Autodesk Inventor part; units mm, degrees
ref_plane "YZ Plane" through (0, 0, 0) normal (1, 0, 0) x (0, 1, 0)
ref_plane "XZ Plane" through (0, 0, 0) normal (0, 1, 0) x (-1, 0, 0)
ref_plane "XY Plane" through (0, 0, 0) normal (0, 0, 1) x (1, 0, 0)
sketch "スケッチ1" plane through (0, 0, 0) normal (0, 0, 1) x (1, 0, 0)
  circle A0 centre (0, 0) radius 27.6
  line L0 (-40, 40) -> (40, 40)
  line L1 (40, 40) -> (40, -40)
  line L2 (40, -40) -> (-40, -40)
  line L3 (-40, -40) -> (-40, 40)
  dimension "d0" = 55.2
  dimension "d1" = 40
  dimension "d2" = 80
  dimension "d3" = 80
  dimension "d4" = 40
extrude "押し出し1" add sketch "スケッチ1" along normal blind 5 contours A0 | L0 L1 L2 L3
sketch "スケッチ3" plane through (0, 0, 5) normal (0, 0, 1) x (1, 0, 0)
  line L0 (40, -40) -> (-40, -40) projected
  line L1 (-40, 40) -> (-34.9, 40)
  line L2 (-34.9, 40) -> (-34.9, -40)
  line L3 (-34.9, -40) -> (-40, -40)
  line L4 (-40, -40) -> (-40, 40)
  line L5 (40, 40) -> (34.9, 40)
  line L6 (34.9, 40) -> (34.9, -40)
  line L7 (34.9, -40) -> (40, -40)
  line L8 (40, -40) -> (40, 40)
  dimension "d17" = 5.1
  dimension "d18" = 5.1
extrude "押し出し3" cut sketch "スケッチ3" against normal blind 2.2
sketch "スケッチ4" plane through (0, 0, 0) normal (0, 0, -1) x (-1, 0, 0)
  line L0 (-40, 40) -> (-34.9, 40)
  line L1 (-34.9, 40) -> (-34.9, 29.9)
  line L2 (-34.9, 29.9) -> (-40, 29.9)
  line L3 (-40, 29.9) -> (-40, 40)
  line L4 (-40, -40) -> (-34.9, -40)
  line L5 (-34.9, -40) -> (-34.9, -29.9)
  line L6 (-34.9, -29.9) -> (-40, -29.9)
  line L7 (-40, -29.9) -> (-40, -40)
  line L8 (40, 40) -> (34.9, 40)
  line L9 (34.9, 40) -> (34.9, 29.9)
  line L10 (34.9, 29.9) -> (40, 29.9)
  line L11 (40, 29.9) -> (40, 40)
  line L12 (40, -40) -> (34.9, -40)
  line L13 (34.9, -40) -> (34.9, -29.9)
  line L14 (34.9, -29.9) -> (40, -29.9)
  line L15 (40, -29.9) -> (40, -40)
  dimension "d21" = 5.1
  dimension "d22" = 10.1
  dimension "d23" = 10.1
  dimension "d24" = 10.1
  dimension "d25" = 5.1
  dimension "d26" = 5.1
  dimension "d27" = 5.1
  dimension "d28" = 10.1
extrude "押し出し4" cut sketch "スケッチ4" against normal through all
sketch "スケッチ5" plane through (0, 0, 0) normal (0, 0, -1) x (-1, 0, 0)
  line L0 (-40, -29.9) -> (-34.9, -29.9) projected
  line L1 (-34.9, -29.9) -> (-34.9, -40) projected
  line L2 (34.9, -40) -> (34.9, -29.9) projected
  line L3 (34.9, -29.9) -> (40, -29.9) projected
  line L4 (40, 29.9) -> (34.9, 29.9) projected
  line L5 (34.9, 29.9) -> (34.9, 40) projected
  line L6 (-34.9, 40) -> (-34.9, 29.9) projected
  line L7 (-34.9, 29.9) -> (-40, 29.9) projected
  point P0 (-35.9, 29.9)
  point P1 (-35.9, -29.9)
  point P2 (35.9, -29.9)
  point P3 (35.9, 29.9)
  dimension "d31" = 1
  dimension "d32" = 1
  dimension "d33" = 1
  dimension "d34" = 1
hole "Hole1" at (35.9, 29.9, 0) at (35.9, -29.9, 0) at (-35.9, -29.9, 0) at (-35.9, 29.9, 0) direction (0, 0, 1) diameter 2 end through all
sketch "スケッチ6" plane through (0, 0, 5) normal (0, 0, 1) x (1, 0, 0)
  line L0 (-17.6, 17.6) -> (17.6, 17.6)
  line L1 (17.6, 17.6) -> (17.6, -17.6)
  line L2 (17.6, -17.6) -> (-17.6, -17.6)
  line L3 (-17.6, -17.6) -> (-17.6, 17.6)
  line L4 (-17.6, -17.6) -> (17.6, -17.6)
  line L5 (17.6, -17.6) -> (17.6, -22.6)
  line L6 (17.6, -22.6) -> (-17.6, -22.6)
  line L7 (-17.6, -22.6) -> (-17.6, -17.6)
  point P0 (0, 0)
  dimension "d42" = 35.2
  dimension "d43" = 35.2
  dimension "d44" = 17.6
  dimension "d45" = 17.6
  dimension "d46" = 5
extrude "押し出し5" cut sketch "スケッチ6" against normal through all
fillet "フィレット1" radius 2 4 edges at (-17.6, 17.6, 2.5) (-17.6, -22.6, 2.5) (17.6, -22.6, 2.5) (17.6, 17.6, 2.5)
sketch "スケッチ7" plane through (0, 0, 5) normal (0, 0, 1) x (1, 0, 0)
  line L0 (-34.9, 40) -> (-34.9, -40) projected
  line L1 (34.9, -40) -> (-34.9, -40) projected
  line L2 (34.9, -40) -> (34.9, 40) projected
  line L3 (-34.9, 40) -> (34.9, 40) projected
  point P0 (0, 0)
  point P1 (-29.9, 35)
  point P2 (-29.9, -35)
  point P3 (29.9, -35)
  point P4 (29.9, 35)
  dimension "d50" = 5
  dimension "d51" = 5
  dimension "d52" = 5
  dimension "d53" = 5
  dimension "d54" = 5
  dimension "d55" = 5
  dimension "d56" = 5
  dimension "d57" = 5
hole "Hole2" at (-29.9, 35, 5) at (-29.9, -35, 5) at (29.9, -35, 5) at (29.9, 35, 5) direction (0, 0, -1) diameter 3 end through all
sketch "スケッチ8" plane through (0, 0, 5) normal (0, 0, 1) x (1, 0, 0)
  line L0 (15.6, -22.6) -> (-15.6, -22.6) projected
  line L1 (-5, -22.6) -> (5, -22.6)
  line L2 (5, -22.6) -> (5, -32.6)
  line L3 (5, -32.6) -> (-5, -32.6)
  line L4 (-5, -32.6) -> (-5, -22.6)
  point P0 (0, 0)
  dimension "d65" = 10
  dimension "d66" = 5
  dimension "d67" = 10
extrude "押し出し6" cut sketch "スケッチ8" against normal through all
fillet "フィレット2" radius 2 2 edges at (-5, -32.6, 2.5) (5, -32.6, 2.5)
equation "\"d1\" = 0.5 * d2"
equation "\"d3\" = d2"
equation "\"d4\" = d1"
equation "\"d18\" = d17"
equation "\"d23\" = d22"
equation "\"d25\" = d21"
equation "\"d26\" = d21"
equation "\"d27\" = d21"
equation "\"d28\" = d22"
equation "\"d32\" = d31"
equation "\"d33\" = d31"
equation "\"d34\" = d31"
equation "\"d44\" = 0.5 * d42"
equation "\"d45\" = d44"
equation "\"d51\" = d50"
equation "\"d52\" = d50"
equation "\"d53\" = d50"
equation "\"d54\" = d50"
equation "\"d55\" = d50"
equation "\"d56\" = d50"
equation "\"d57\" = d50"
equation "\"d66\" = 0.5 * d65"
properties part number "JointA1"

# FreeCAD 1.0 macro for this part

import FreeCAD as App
import Part
import Sketcher


def edges_at(feature, points):
    """Names of the edges that pass closest to the given points."""
    edges = feature.Shape.Edges
    near = lambda p: min(range(len(edges)), key=lambda i: edges[i].distToShape(Part.Vertex(*p))[0])
    return sorted({f"Edge{near(p) + 1}" for p in points})


def add_polygon(sketch, points):
    """Adds a closed chain of lines whose ends are joined by coincident constraints."""
    first, n = sketch.GeometryCount, len(points)
    for a, b in zip(points, points[1:] + points[:1]):
        sketch.addGeometry(Part.LineSegment(App.Vector(*a, 0), App.Vector(*b, 0)), False)
    for i in range(n):
        sketch.addConstraint(Sketcher.Constraint("Coincident", first + i, 2, first + (i + 1) % n, 1))

doc = App.newDocument("Part")
body = doc.addObject("PartDesign::Body", "Body")

sketch1 = body.newObject("Sketcher::SketchObject", "Sketch")
sketch1.AttachmentSupport = (doc.getObject("XY_Plane"), [""])
sketch1.MapMode = "FlatFace"
add_polygon(sketch1, [(40, 40), (-40, 40), (-40, -40), (40, -40)])
sketch1.addConstraint([
    Sketcher.Constraint("Horizontal", 0),
    Sketcher.Constraint("Vertical", 1),
    Sketcher.Constraint("Horizontal", 2),
    Sketcher.Constraint("Vertical", 3),
    Sketcher.Constraint("Symmetric", 0, 2, 2, 2, -1, 1),
    Sketcher.Constraint("Equal", 2, 1),
    Sketcher.Constraint("DistanceX", 0, 2, 0, 1, 80.0),
])
pad1 = body.newObject("PartDesign::Pad", "Pad")
pad1.Profile = sketch1
pad1.Length = 5

sketch2 = body.newObject("Sketcher::SketchObject", "Sketch001")
sketch2.AttachmentSupport = (doc.getObject("XY_Plane"), [""])
sketch2.MapMode = "FlatFace"
sketch2.AttachmentOffset = App.Placement(App.Vector(0, 0, 5), App.Rotation())
add_polygon(sketch2, [(-40, -40), (-35, -40), (-35, 40), (-40, 40)])
add_polygon(sketch2, [(35, -40), (40, -40), (40, 40), (35, 40)])
sketch2.addConstraint([
    Sketcher.Constraint("Horizontal", 0),
    Sketcher.Constraint("Vertical", 1),
    Sketcher.Constraint("Horizontal", 2),
    Sketcher.Constraint("Vertical", 3),
    Sketcher.Constraint("Horizontal", 4),
    Sketcher.Constraint("Vertical", 5),
    Sketcher.Constraint("Horizontal", 6),
    Sketcher.Constraint("Vertical", 7),
    Sketcher.Constraint("Symmetric", 2, 2, 4, 2, -1, 1),
    Sketcher.Constraint("Symmetric", 0, 2, 6, 2, -1, 1),
    Sketcher.Constraint("Horizontal", 3, 2, 4, 2),
    Sketcher.Constraint("DistanceX", 0, 1, 0, 2, 5.1),
    Sketcher.Constraint("DistanceY", 1, 1, 1, 2, 80.0),
    Sketcher.Constraint("DistanceX", 2, 2, -1, 1, 40.0),
])
pocket1 = body.newObject("PartDesign::Pocket", "Pocket")
pocket1.Profile = sketch2
pocket1.Length = 2.2

sketch3 = body.newObject("Sketcher::SketchObject", "Sketch002")
sketch3.AttachmentSupport = (doc.getObject("XY_Plane"), [""])
sketch3.MapMode = "FlatFace"
add_polygon(sketch3, [(35, 40), (40, 40), (40, 30), (35, 30)])
add_polygon(sketch3, [(40, -30), (40, -40), (35, -40), (35, -30)])
add_polygon(sketch3, [(-40, 30), (-40, 40), (-35, 40), (-35, 30)])
add_polygon(sketch3, [(-35, -40), (-40, -40), (-40, -30), (-35, -30)])
sketch3.addConstraint([
    Sketcher.Constraint("Horizontal", 0),
    Sketcher.Constraint("Vertical", 1),
    Sketcher.Constraint("Horizontal", 2),
    Sketcher.Constraint("Vertical", 3),
    Sketcher.Constraint("Vertical", 4),
    Sketcher.Constraint("Horizontal", 5),
    Sketcher.Constraint("Vertical", 6),
    Sketcher.Constraint("Horizontal", 7),
    Sketcher.Constraint("Vertical", 8),
    Sketcher.Constraint("Horizontal", 9),
    Sketcher.Constraint("Vertical", 10),
    Sketcher.Constraint("Horizontal", 11),
    Sketcher.Constraint("Horizontal", 12),
    Sketcher.Constraint("Vertical", 13),
    Sketcher.Constraint("Horizontal", 14),
    Sketcher.Constraint("Vertical", 15),
    Sketcher.Constraint("Symmetric", 4, 2, 8, 2, -1, 1),
    Sketcher.Constraint("Symmetric", 6, 2, 10, 2, -1, 1),
    Sketcher.Constraint("Symmetric", 0, 2, 12, 2, -1, 1),
    Sketcher.Constraint("Symmetric", 2, 2, 14, 2, -1, 1),
    Sketcher.Constraint("Symmetric", 0, 2, 8, 2, -2),
    Sketcher.Constraint("Symmetric", 2, 2, 10, 2, -2),
    Sketcher.Constraint("DistanceX", 0, 1, 0, 2, 5.1),
    Sketcher.Constraint("DistanceY", 1, 2, 1, 1, 10.1),
    Sketcher.Constraint("DistanceX", -1, 1, 0, 2, 40.0),
    Sketcher.Constraint("DistanceY", -1, 1, 0, 2, 40.0),
])
pocket2 = body.newObject("PartDesign::Pocket", "Pocket001")
pocket2.Profile = sketch3
pocket2.Type = "ThroughAll"
pocket2.Reversed = True

sketch4 = body.newObject("Sketcher::SketchObject", "Sketch003")
sketch4.AttachmentSupport = (doc.getObject("XY_Plane"), [""])
sketch4.MapMode = "FlatFace"
sketch4.addGeometry([
    Part.Circle(App.Vector(35.9, 29.9, 0), App.Vector(0, 0, 1), 1),
    Part.Circle(App.Vector(35.9, -29.9, 0), App.Vector(0, 0, 1), 1),
    Part.Circle(App.Vector(-35.9, -29.9, 0), App.Vector(0, 0, 1), 1),
    Part.Circle(App.Vector(-35.9, 29.9, 0), App.Vector(0, 0, 1), 1),
], False)
sketch4.addConstraint([
    Sketcher.Constraint("Equal", 0, 1),
    Sketcher.Constraint("Equal", 1, 2),
    Sketcher.Constraint("Equal", 2, 3),
    Sketcher.Constraint("Symmetric", 0, 3, 2, 3, -1, 1),
    Sketcher.Constraint("Symmetric", 1, 3, 3, 3, -1, 1),
    Sketcher.Constraint("Symmetric", 1, 3, 2, 3, -2),
    Sketcher.Constraint("Diameter", 0, 2.0),
    Sketcher.Constraint("DistanceX", -1, 1, 0, 3, 35.9),
    Sketcher.Constraint("DistanceY", -1, 1, 0, 3, 29.9),
])
doc.recompute()
hole = body.newObject("PartDesign::Hole", "Hole")
hole.Profile = sketch4
hole.ThreadType = "None"
hole.Diameter = 2
hole.DepthType = "ThroughAll"
hole.Reversed = True

sketch5 = body.newObject("Sketcher::SketchObject", "Sketch004")
sketch5.AttachmentSupport = (doc.getObject("XY_Plane"), [""])
sketch5.MapMode = "FlatFace"
sketch5.AttachmentOffset = App.Placement(App.Vector(0, 0, 5), App.Rotation())
add_polygon(sketch5, [(18, 18), (-18, 18), (-18, -23), (18, -23)])
sketch5.addConstraint([
    Sketcher.Constraint("Horizontal", 0),
    Sketcher.Constraint("Vertical", 1),
    Sketcher.Constraint("Horizontal", 2),
    Sketcher.Constraint("Vertical", 3),
    Sketcher.Constraint("DistanceX", 0, 2, 0, 1, 35.2),
    Sketcher.Constraint("DistanceX", 0, 2, -1, 1, 17.6),
    Sketcher.Constraint("DistanceY", -1, 1, 0, 2, 17.6),
    Sketcher.Constraint("DistanceY", 1, 2, 1, 1, 40.2),
])
pocket3 = body.newObject("PartDesign::Pocket", "Pocket002")
pocket3.Profile = sketch5
pocket3.Type = "ThroughAll"
doc.recompute()

fillet = body.newObject("PartDesign::Fillet", "Fillet")
fillet.Base = (pocket3, edges_at(pocket3, [
    (-17.6, 17.6, 2.5),
    (-17.6, -22.6, 2.5),
    (17.6, -22.6, 2.5),
    (17.6, 17.6, 2.5),
]))
fillet.Radius = 2

sketch6 = body.newObject("Sketcher::SketchObject", "Sketch005")
sketch6.AttachmentSupport = (doc.getObject("XY_Plane"), [""])
sketch6.MapMode = "FlatFace"
sketch6.AttachmentOffset = App.Placement(App.Vector(0, 0, 5), App.Rotation())
sketch6.addGeometry([
    Part.Circle(App.Vector(-29.9, 35, 0), App.Vector(0, 0, 1), 1.5),
    Part.Circle(App.Vector(-29.9, -35, 0), App.Vector(0, 0, 1), 1.5),
    Part.Circle(App.Vector(29.9, -35, 0), App.Vector(0, 0, 1), 1.5),
    Part.Circle(App.Vector(29.9, 35, 0), App.Vector(0, 0, 1), 1.5),
], False)
sketch6.addConstraint([
    Sketcher.Constraint("Equal", 0, 1),
    Sketcher.Constraint("Equal", 1, 2),
    Sketcher.Constraint("Equal", 2, 3),
    Sketcher.Constraint("Symmetric", 0, 3, 2, 3, -1, 1),
    Sketcher.Constraint("Symmetric", 1, 3, 3, 3, -1, 1),
    Sketcher.Constraint("Symmetric", 1, 3, 2, 3, -2),
    Sketcher.Constraint("Diameter", 0, 3.0),
    Sketcher.Constraint("DistanceY", -1, 1, 0, 3, 35.0),
    Sketcher.Constraint("DistanceX", 0, 3, -1, 1, 29.9),
])
doc.recompute()
hole2 = body.newObject("PartDesign::Hole", "Hole001")
hole2.Profile = sketch6
hole2.ThreadType = "None"
hole2.Diameter = 3
hole2.DepthType = "ThroughAll"

sketch7 = body.newObject("Sketcher::SketchObject", "Sketch006")
sketch7.AttachmentSupport = (doc.getObject("XY_Plane"), [""])
sketch7.MapMode = "FlatFace"
sketch7.AttachmentOffset = App.Placement(App.Vector(0, 0, 5), App.Rotation())
add_polygon(sketch7, [(5, -33), (5, -23), (-5, -23), (-5, -33)])
sketch7.addConstraint([
    Sketcher.Constraint("Vertical", 0),
    Sketcher.Constraint("Horizontal", 1),
    Sketcher.Constraint("Vertical", 2),
    Sketcher.Constraint("Horizontal", 3),
    Sketcher.Constraint("Equal", 3, 0),
    Sketcher.Constraint("DistanceX", 1, 2, 1, 1, 10.0),
    Sketcher.Constraint("DistanceX", -1, 1, 0, 2, 5.0),
    Sketcher.Constraint("DistanceY", 0, 2, -1, 1, 22.6),
])
pocket4 = body.newObject("PartDesign::Pocket", "Pocket003")
pocket4.Profile = sketch7
pocket4.Type = "ThroughAll"
doc.recompute()

fillet2 = body.newObject("PartDesign::Fillet", "Fillet001")
fillet2.Base = (pocket4, edges_at(pocket4, [(-5, -32.6, 2.5), (5, -32.6, 2.5)]))
fillet2.Radius = 2

doc.recompute()
